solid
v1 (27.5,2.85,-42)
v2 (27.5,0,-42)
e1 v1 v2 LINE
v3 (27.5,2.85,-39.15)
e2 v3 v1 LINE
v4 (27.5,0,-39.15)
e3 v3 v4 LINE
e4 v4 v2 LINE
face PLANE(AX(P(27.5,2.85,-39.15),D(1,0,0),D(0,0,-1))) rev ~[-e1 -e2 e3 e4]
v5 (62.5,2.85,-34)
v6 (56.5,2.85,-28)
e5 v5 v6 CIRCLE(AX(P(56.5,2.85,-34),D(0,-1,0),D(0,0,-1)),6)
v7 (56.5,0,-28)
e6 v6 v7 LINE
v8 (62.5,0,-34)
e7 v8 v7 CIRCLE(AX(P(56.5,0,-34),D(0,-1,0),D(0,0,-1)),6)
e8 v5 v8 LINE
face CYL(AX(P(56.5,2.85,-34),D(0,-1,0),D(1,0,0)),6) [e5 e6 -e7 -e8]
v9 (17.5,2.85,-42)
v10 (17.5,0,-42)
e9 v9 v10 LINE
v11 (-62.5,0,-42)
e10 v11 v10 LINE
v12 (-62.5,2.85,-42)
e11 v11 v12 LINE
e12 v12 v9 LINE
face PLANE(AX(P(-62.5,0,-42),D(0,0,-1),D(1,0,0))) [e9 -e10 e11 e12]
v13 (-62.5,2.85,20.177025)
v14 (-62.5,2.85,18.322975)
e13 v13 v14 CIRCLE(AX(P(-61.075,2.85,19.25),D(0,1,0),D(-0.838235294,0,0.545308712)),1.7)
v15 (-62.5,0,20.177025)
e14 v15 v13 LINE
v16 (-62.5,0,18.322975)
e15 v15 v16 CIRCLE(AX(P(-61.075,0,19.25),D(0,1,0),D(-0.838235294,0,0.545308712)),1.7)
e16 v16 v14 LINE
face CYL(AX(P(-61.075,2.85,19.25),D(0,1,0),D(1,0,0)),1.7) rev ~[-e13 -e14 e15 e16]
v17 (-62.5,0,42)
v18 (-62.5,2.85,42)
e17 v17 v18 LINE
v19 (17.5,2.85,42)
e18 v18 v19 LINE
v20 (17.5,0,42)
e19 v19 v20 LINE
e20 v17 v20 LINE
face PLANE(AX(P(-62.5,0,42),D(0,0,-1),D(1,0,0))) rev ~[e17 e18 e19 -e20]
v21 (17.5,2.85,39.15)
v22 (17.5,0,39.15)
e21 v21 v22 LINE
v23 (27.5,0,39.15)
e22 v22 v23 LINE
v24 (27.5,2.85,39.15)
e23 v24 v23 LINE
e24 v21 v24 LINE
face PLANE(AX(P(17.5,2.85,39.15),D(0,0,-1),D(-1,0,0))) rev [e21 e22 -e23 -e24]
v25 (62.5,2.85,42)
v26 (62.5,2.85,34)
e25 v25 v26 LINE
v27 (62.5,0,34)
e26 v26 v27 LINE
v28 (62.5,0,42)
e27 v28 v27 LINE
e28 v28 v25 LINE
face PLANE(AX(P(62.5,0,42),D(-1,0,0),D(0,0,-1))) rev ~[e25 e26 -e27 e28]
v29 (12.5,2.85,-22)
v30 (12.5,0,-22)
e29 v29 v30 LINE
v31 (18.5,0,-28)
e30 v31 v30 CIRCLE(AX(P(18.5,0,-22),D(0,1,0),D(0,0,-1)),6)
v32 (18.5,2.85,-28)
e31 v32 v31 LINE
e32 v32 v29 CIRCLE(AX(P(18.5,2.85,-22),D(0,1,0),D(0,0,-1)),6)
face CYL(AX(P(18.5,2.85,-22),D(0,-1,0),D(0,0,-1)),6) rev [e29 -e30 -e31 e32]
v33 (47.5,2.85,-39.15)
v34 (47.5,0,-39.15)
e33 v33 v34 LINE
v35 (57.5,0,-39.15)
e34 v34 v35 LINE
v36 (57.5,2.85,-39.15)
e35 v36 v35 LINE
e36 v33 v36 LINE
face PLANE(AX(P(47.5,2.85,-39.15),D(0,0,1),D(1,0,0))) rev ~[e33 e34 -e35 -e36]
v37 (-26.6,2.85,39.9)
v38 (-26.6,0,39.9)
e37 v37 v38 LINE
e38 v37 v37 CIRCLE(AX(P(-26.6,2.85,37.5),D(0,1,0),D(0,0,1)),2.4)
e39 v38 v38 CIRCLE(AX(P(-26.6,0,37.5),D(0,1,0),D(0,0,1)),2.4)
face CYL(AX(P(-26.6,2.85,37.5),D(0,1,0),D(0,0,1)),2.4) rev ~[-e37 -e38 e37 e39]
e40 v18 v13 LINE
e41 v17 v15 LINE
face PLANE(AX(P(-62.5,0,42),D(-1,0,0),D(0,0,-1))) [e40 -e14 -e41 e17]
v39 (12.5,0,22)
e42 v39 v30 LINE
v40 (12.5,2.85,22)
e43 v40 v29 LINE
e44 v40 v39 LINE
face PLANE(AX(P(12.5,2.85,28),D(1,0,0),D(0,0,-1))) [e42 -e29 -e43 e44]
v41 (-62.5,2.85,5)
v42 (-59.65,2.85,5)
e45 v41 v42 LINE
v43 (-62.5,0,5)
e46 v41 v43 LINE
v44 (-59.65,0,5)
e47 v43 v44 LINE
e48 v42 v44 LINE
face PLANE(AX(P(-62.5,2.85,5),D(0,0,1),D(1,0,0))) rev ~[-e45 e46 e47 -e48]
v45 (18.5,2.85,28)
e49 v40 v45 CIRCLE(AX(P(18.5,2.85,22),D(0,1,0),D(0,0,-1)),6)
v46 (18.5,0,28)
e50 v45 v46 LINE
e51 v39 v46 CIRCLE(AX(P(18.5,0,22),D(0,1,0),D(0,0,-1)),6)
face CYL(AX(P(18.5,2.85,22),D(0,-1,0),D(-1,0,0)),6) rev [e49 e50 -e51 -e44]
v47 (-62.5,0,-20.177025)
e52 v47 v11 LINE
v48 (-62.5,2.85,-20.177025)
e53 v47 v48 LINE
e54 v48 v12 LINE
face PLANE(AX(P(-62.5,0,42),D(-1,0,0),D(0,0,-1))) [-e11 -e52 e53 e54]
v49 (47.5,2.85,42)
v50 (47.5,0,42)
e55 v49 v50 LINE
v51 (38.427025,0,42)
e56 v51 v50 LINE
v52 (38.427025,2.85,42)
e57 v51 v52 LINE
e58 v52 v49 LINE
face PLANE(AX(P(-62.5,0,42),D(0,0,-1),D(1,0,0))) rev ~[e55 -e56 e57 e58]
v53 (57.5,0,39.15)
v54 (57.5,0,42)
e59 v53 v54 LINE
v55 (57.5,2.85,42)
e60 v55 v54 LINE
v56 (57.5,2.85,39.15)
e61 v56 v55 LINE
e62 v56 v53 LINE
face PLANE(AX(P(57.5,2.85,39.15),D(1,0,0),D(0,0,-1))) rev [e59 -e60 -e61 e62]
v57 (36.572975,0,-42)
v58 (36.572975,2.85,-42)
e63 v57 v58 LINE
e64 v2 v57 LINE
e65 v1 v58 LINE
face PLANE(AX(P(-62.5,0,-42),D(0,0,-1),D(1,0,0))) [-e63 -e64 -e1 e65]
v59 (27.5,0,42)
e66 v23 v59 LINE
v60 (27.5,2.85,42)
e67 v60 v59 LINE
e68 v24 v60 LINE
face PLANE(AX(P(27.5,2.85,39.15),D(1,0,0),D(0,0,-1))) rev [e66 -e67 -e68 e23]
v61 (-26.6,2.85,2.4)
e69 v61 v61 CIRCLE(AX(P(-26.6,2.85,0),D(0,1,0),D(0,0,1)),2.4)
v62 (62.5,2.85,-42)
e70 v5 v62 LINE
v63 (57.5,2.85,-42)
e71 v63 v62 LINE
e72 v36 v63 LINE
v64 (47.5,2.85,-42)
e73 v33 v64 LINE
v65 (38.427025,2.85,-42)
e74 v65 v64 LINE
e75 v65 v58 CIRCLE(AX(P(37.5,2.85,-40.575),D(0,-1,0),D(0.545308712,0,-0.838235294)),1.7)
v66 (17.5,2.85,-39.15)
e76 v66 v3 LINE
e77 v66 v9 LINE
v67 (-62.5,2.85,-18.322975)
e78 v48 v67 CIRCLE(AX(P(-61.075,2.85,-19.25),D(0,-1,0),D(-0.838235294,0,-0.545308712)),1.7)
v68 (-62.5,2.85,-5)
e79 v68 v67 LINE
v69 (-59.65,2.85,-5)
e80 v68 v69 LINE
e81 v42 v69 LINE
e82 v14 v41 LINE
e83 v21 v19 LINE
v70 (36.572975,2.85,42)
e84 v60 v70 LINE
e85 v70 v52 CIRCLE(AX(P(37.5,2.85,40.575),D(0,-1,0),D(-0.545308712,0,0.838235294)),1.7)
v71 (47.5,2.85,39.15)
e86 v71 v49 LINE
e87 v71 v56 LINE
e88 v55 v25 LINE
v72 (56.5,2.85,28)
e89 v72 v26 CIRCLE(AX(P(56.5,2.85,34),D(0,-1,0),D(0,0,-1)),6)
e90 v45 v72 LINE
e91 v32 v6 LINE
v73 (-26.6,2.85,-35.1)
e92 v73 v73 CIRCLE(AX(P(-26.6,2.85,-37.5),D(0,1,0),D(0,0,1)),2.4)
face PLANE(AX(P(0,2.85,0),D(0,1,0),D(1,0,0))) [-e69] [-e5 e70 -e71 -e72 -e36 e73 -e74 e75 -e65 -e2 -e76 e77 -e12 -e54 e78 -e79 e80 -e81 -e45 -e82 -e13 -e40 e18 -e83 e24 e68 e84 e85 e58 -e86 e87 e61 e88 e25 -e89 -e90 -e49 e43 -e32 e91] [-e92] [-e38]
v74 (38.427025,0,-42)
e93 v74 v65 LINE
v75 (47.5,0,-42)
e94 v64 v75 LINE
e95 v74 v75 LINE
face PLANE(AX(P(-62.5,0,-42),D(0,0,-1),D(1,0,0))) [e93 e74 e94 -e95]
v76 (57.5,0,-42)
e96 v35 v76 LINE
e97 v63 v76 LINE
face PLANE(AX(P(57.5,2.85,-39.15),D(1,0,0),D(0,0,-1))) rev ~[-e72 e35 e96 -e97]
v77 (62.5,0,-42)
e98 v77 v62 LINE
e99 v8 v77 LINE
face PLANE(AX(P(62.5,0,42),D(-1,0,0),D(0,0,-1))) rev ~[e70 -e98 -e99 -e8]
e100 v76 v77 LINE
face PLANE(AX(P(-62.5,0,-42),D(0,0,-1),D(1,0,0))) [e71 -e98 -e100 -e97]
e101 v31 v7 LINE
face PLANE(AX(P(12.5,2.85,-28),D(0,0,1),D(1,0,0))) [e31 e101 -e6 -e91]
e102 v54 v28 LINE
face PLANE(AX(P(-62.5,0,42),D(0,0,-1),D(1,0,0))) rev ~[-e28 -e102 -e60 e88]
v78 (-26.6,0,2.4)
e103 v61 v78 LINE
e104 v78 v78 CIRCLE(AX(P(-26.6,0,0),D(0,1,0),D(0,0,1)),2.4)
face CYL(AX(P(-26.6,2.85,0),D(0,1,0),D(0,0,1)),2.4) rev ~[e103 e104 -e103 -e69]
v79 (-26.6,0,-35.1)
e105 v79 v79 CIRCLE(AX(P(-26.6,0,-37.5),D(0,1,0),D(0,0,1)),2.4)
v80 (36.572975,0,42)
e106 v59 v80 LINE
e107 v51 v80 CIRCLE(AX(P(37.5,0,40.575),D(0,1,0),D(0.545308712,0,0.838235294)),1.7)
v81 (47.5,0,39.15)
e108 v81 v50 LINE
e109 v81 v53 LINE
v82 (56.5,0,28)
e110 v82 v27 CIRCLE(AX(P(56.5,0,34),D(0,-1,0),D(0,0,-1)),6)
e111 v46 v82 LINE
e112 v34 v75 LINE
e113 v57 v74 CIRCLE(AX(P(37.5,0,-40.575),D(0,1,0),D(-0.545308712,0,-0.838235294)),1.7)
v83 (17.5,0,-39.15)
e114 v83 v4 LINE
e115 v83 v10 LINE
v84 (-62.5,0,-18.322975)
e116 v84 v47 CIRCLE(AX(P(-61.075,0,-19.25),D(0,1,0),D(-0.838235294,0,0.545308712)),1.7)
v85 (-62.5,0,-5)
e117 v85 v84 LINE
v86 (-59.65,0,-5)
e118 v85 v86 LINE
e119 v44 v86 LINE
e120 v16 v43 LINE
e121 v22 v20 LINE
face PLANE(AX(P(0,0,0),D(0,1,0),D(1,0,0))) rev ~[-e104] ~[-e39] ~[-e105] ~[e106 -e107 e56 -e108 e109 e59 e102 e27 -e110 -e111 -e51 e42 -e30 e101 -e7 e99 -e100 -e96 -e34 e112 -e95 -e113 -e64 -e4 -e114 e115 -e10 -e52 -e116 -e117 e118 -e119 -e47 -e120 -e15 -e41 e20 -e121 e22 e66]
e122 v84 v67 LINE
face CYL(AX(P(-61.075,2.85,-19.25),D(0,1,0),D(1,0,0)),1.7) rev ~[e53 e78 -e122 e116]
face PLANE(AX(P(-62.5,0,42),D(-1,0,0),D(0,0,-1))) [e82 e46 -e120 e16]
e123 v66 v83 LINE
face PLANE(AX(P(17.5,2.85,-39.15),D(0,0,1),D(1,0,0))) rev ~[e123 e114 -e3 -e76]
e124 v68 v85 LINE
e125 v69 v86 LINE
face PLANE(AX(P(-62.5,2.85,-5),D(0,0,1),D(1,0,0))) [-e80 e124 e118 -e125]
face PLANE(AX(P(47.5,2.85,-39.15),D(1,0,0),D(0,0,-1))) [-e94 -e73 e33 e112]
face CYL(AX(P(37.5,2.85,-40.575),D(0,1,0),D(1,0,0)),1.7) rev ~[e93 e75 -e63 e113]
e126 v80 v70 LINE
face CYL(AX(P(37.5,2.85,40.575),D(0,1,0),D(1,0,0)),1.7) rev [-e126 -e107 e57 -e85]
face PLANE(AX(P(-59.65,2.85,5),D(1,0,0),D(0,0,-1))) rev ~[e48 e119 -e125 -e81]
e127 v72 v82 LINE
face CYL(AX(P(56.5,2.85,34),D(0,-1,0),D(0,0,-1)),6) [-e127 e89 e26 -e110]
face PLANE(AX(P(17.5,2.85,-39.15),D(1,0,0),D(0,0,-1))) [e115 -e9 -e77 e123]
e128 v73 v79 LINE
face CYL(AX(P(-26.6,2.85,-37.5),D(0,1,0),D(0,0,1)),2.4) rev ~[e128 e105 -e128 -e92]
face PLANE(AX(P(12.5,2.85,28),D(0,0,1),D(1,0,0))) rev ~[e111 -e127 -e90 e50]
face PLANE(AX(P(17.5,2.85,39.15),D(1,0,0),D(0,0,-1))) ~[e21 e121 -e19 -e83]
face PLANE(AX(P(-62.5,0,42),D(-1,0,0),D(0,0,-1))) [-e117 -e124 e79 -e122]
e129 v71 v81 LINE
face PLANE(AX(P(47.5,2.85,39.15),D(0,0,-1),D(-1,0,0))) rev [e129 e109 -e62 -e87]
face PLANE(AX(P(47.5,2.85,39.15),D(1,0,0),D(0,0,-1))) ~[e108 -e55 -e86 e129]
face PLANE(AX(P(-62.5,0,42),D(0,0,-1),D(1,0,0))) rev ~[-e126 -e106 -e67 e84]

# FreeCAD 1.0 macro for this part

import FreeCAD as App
import Part
import Sketcher
from FreeCAD import Vector


def edges_at(feature, points):
    """Names of the edges that pass closest to the given points."""
    edges = feature.Shape.Edges
    near = lambda p: min(range(len(edges)), key=lambda i: edges[i].distToShape(Part.Vertex(*p))[0])
    return sorted({f"Edge{near(p) + 1}" for p in points})


def add_polygon(sketch, points):
    """Adds a closed chain of lines whose ends are joined by coincident constraints."""
    first, n = sketch.GeometryCount, len(points)
    for a, b in zip(points, points[1:] + points[:1]):
        sketch.addGeometry(Part.LineSegment(App.Vector(*a, 0), App.Vector(*b, 0)), False)
    for i in range(n):
        sketch.addConstraint(Sketcher.Constraint("Coincident", first + i, 2, first + (i + 1) % n, 1))

doc = App.newDocument("Part")
params = doc.addObject("Spreadsheet::Sheet", "Params")
for row, (alias, value) in enumerate([
    ("sketch1_width", "125 mm"),
    ("sketch1_height", "84 mm"),
    ("pad1_length", "2.85 mm"),
    ("sketch2_diameter", "3 mm"),
    ("sketch3_diameter", "4.8 mm"),
    ("sketch4_diameter", "3.4 mm"),
    ("sketch4_height", "10 mm"),
    ("sketch4_width", "2.85 mm"),
    ("sketch5_diameter", "3.4 mm"),
    ("sketch5_width", "10 mm"),
    ("sketch5_height", "2.85 mm"),
    ("sketch6_width", "50 mm"),
    ("sketch6_height", "56 mm"),
    ("fillet_radius", "6 mm"),
], start=1):
    params.set(f"A{row}", alias)
    params.set(f"B{row}", "=" + value)
    params.setAlias(f"B{row}", alias)

body = doc.addObject("PartDesign::Body", "Body")

# Sketch on XZ plane
sketch1 = doc.addObject("Sketcher::SketchObject", "Sketch")
body.addObject(sketch1)
sketch1.AttachmentSupport = (doc.XZ_Plane, [""])
sketch1.MapMode = "FlatFace"
add_polygon(sketch1, [(-62, -42), (-62, 42), (62, 42), (62, -42)])  # lines 0-3
sketch1.addConstraint([
    Sketcher.Constraint("Vertical", 0),
    Sketcher.Constraint("Horizontal", 1),
    Sketcher.Constraint("Vertical", 2),
    Sketcher.Constraint("Horizontal", 3),
    Sketcher.Constraint("Symmetric", 0, 2, 2, 2, -1, 1),
    Sketcher.Constraint("DistanceX", 1, 1, 1, 2, 125.0),
    Sketcher.Constraint("DistanceY", 0, 1, 0, 2, 84.0),
])
sketch1.setExpression("Constraints[9]", "Params.sketch1_width")
sketch1.setExpression("Constraints[10]", "Params.sketch1_height")
pad1 = doc.addObject("PartDesign::Pad", "Pad")
body.addObject(pad1)
pad1.Profile = sketch1
pad1.setExpression("Length", "Params.pad1_length")
pad1.Reversed = True

# Sketch on XZ plane
sketch2 = doc.addObject("Sketcher::SketchObject", "Sketch001")
body.addObject(sketch2)
sketch2.AttachmentSupport = (doc.XZ_Plane, [""])
sketch2.MapMode = "FlatFace"
sketch2.addGeometry(Part.Circle(Vector(44.5, 0, 0), Vector(0, 0, 1), 1.5), False)
sketch2.addConstraint([
    Sketcher.Constraint("PointOnObject", 0, 3, -1),
    Sketcher.Constraint("Diameter", 0, 3.0),
    Sketcher.Constraint("DistanceX", -1, 1, 0, 3, 44.5),
])
sketch2.setExpression("Constraints[1]", "Params.sketch2_diameter")
pocket1 = doc.addObject("PartDesign::Pocket", "Pocket")
body.addObject(pocket1)
pocket1.Profile = sketch2
pocket1.Type = "ThroughAll"

# Sketch on XZ plane
sketch3 = doc.addObject("Sketcher::SketchObject", "Sketch002")
body.addObject(sketch3)
sketch3.AttachmentSupport = (doc.XZ_Plane, [""])
sketch3.MapMode = "FlatFace"
sketch3.AttachmentOffset = App.Placement(Vector(0, 0, -2.85), App.Rotation())
sketch3.addGeometry([
    Part.Circle(Vector(-26.6, 0, 0), Vector(0, 0, 1), 2.4),
    Part.Circle(Vector(-26.6, -37.5, 0), Vector(0, 0, 1), 2.4),
    Part.Circle(Vector(-26.6, 37.5, 0), Vector(0, 0, 1), 2.4),
], False)
sketch3.addConstraint([
    Sketcher.Constraint("Equal", 0, 1),
    Sketcher.Constraint("Equal", 1, 2),
    Sketcher.Constraint("Symmetric", 1, 3, 2, 3, -1),
    Sketcher.Constraint("PointOnObject", 0, 3, -1),
    Sketcher.Constraint("Vertical", 0, 3, 1, 3),
    Sketcher.Constraint("Diameter", 0, 4.8),
    Sketcher.Constraint("DistanceY", 1, 3, 2, 3, 75.0),
    Sketcher.Constraint("DistanceX", 0, 3, -1, 1, 26.6),
])
sketch3.setExpression("Constraints[5]", "Params.sketch3_diameter")
pocket2 = doc.addObject("PartDesign::Pocket", "Pocket001")
body.addObject(pocket2)
pocket2.Profile = sketch3
pocket2.Type = "ThroughAll"
pocket2.Reversed = True

# Sketch on XZ plane
sketch4 = doc.addObject("Sketcher::SketchObject", "Sketch003")
body.addObject(sketch4)
sketch4.AttachmentSupport = (doc.XZ_Plane, [""])
sketch4.MapMode = "FlatFace"
sketch4.AttachmentOffset = App.Placement(Vector(0, 0, -2.85), App.Rotation())
sketch4.addGeometry(Part.Circle(Vector(-61.1, 19.2, 0), Vector(0, 0, 1), 1.7), False)  # 0
sketch4.addGeometry(Part.Circle(Vector(-61.1, -19.2, 0), Vector(0, 0, 1), 1.7), False)  # 1
add_polygon(sketch4, [(-62.5, -5), (-62.5, 5), (-59.6, 5), (-59.6, -5)])  # lines 2-5
sketch4.addConstraint([
    Sketcher.Constraint("Vertical", 2),
    Sketcher.Constraint("Horizontal", 3),
    Sketcher.Constraint("Vertical", 4),
    Sketcher.Constraint("Horizontal", 5),
    Sketcher.Constraint("Equal", 0, 1),
    Sketcher.Constraint("Symmetric", 0, 3, 1, 3, -1),
    Sketcher.Constraint("Diameter", 0, 3.4),
    Sketcher.Constraint("DistanceY", 2, 1, 2, 2, 10.0),
    Sketcher.Constraint("DistanceY", -1, 1, 2, 2, 5.0),
    Sketcher.Constraint("DistanceX", 3, 1, 3, 2, 2.85),
    Sketcher.Constraint("DistanceX", 2, 2, -1, 1, 62.5),
    Sketcher.Constraint("DistanceY", 1, 3, 0, 3, 38.5),
    Sketcher.Constraint("DistanceX", 0, 3, -1, 1, 61.075),
])
sketch4.setExpression("Constraints[10]", "Params.sketch4_diameter")
sketch4.setExpression("Constraints[11]", "Params.sketch4_height")
sketch4.setExpression("Constraints[13]", "Params.sketch4_width")
pocket3 = doc.addObject("PartDesign::Pocket", "Pocket002")
body.addObject(pocket3)
pocket3.Profile = sketch4
pocket3.Type = "ThroughAll"
pocket3.Reversed = True

# Sketch on XZ plane
sketch5 = doc.addObject("Sketcher::SketchObject", "Sketch004")
body.addObject(sketch5)
sketch5.AttachmentSupport = (doc.XZ_Plane, [""])
sketch5.MapMode = "FlatFace"
sketch5.AttachmentOffset = App.Placement(Vector(0, 0, -2.85), App.Rotation())
sketch5.addGeometry(Part.Circle(Vector(37.5, -40.6, 0), Vector(0, 0, 1), 1.7), False)  # 0
add_polygon(sketch5, [(47.5, -42), (47.5, -39.1), (57.5, -39.1), (57.5, -42)])  # lines 1-4
add_polygon(sketch5, [(17.5, -42), (17.5, -39.1), (27.5, -39.1), (27.5, -42)])  # lines 5-8
sketch5.addConstraint([
    Sketcher.Constraint("Vertical", 1),
    Sketcher.Constraint("Horizontal", 2),
    Sketcher.Constraint("Vertical", 3),
    Sketcher.Constraint("Horizontal", 4),
    Sketcher.Constraint("Vertical", 5),
    Sketcher.Constraint("Horizontal", 6),
    Sketcher.Constraint("Vertical", 7),
    Sketcher.Constraint("Horizontal", 8),
    Sketcher.Constraint("Horizontal", 2, 2, 5, 2),
    Sketcher.Constraint("Horizontal", 4, 2, 7, 2),
    Sketcher.Constraint("Equal", 4, 6),
    Sketcher.Constraint("Diameter", 0, 3.4),
    Sketcher.Constraint("DistanceX", 2, 1, 2, 2, 10.0),
    Sketcher.Constraint("DistanceY", 3, 2, -1, 1, 42.0),
    Sketcher.Constraint("DistanceX", 0, 3, 1, 2, 10.0),
    Sketcher.Constraint("DistanceX", 5, 2, 0, 3, 20.0),
    Sketcher.Constraint("DistanceY", 1, 1, 1, 2, 2.85),
    Sketcher.Constraint("DistanceX", -1, 1, 0, 3, 37.5),
    Sketcher.Constraint("DistanceY", 0, 3, -1, 1, 40.575),
])
sketch5.setExpression("Constraints[19]", "Params.sketch5_diameter")
sketch5.setExpression("Constraints[20]", "Params.sketch5_width")
sketch5.setExpression("Constraints[24]", "Params.sketch5_height")
pocket4 = doc.addObject("PartDesign::Pocket", "Pocket003")
body.addObject(pocket4)
pocket4.Profile = sketch5
pocket4.Type = "ThroughAll"
pocket4.Reversed = True
doc.recompute()

mirrored = doc.addObject("PartDesign::Mirrored", "Mirrored")
body.addObject(mirrored)
mirrored.Originals = [pocket4]
mirrored.MirrorPlane = (doc.XY_Plane, [""])
body.Tip = mirrored

# Sketch on XZ plane
sketch6 = doc.addObject("Sketcher::SketchObject", "Sketch005")
body.addObject(sketch6)
sketch6.AttachmentSupport = (doc.XZ_Plane, [""])
sketch6.MapMode = "FlatFace"
sketch6.AttachmentOffset = App.Placement(Vector(0, 0, -2.85), App.Rotation())
add_polygon(sketch6, [(12, -28), (12, 28), (62, 28), (62, -28)])  # lines 0-3
sketch6.addConstraint([
    Sketcher.Constraint("Vertical", 0),
    Sketcher.Constraint("Horizontal", 1),
    Sketcher.Constraint("Vertical", 2),
    Sketcher.Constraint("Horizontal", 3),
    Sketcher.Constraint("DistanceX", 1, 1, 1, 2, 50.0),
    Sketcher.Constraint("DistanceY", 0, 1, 0, 2, 56.0),
    Sketcher.Constraint("DistanceY", -1, 1, 0, 2, 28.0),
    Sketcher.Constraint("DistanceX", -1, 1, 0, 2, 12.5),
])
sketch6.setExpression("Constraints[8]", "Params.sketch6_width")
sketch6.setExpression("Constraints[9]", "Params.sketch6_height")
pocket5 = doc.addObject("PartDesign::Pocket", "Pocket004")
body.addObject(pocket5)
pocket5.Profile = sketch6
pocket5.Type = "ThroughAll"
pocket5.Reversed = True
doc.recompute()

fillet = doc.addObject("PartDesign::Fillet", "Fillet")
body.addObject(fillet)
fillet.Base = (pocket5, edges_at(pocket5, [
    (62.5, 1.425, -28),
    (62.5, 1.425, 28),
    (12.5, 1.425, 28),
    (12.5, 1.425, -28),
]))
fillet.setExpression("Radius", "Params.fillet_radius")

doc.recompute()
